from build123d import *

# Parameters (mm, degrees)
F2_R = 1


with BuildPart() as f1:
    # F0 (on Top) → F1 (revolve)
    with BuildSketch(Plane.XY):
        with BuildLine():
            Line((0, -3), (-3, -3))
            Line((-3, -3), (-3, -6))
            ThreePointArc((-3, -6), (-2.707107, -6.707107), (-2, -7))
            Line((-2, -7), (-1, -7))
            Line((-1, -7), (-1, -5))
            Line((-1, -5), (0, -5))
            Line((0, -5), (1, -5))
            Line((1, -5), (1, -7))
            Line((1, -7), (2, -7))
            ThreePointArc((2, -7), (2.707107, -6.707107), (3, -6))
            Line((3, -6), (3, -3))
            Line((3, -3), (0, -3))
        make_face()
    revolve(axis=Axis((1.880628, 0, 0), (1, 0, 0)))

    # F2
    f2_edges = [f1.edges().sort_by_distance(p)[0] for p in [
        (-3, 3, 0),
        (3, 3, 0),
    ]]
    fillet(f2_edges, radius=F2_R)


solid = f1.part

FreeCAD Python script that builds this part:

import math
import FreeCAD as App
import Part
import Sketcher
Q = App.Units.Quantity


def edges_at(feature, points):
    """Names of the edges that pass closest to the given points."""
    edges = feature.Shape.Edges
    near = lambda p: min(range(len(edges)), key=lambda i: edges[i].distToShape(Part.Vertex(*p))[0])
    return sorted({f"Edge{near(p) + 1}" for p in points})

doc = App.newDocument("Part")
body = doc.addObject("PartDesign::Body", "Body")

# Sketch on XY plane
sketch1 = body.newObject("Sketcher::SketchObject", "Sketch")
sketch1.AttachmentSupport = (doc.getObject("XY_Plane"), [""])
sketch1.MapMode = "FlatFace"
sketch1.addGeometry([
    Part.LineSegment(App.Vector(-3, -3, 0), App.Vector(-3, -6, 0)),  # 0
    Part.ArcOfCircle(Part.Circle(App.Vector(-2, -6, 0), App.Vector(0, 0, 1), 1), math.radians(180), math.radians(270)),  # 1
    Part.LineSegment(App.Vector(-2, -7, 0), App.Vector(-1, -7, 0)),  # 2
    Part.LineSegment(App.Vector(-1, -7, 0), App.Vector(-1, -5, 0)),  # 3
    Part.LineSegment(App.Vector(-1, -5, 0), App.Vector(1, -5, 0)),  # 4
    Part.LineSegment(App.Vector(1, -5, 0), App.Vector(1, -7, 0)),  # 5
    Part.LineSegment(App.Vector(1, -7, 0), App.Vector(2, -7, 0)),  # 6
    Part.ArcOfCircle(Part.Circle(App.Vector(2, -6, 0), App.Vector(0, 0, 1), 1), math.radians(-90), math.radians(0)),  # 7
    Part.LineSegment(App.Vector(3, -6, 0), App.Vector(3, -3, 0)),  # 8
    Part.LineSegment(App.Vector(3, -3, 0), App.Vector(-3, -3, 0)),  # 9
], False)
sketch1.addConstraint([
    Sketcher.Constraint("Tangent", 0, 2, 1, 1),
    Sketcher.Constraint("Tangent", 1, 2, 2, 1),
    Sketcher.Constraint("Coincident", 2, 2, 3, 1),
    Sketcher.Constraint("Coincident", 3, 2, 4, 1),
    Sketcher.Constraint("Coincident", 4, 2, 5, 1),
    Sketcher.Constraint("Coincident", 5, 2, 6, 1),
    Sketcher.Constraint("Tangent", 6, 2, 7, 1),
    Sketcher.Constraint("Tangent", 7, 2, 8, 1),
    Sketcher.Constraint("Coincident", 8, 2, 9, 1),
    Sketcher.Constraint("Coincident", 9, 2, 0, 1),
    Sketcher.Constraint("Vertical", 0),
    Sketcher.Constraint("Horizontal", 2),
    Sketcher.Constraint("Vertical", 3),
    Sketcher.Constraint("Horizontal", 4),
    Sketcher.Constraint("Vertical", 5),
    Sketcher.Constraint("Horizontal", 6),
    Sketcher.Constraint("Vertical", 8),
    Sketcher.Constraint("Horizontal", 9),
    Sketcher.Constraint("Equal", 1, 7),
    Sketcher.Constraint("Symmetric", 1, 3, 7, 3, -2),
    Sketcher.Constraint("Equal", 2, 6),
    Sketcher.Constraint("Equal", 4, 3),
    Sketcher.Constraint("Radius", 1, Q("0.999999 mm")),
    Sketcher.Constraint("DistanceX", 2, 1, 2, 2, Q("1 mm")),
    Sketcher.Constraint("DistanceX", 4, 1, 4, 2, Q("2 mm")),
    Sketcher.Constraint("DistanceY", 0, 2, 0, 1, Q("3 mm")),
    Sketcher.Constraint("DistanceY", 1, 3, -1, 1, Q("6.000001 mm")),
])
revolution = body.newObject("PartDesign::Revolution", "Revolution")
revolution.Profile = sketch1
revolution.ReferenceAxis = (sketch1, ["H_Axis"])
revolution.Angle = 360
doc.recompute()

fillet = body.newObject("PartDesign::Fillet", "Fillet")
fillet.Base = (revolution, edges_at(revolution, [(-3, 3, 0), (3, 3, 0)]))
fillet.Radius = 1

doc.recompute()
